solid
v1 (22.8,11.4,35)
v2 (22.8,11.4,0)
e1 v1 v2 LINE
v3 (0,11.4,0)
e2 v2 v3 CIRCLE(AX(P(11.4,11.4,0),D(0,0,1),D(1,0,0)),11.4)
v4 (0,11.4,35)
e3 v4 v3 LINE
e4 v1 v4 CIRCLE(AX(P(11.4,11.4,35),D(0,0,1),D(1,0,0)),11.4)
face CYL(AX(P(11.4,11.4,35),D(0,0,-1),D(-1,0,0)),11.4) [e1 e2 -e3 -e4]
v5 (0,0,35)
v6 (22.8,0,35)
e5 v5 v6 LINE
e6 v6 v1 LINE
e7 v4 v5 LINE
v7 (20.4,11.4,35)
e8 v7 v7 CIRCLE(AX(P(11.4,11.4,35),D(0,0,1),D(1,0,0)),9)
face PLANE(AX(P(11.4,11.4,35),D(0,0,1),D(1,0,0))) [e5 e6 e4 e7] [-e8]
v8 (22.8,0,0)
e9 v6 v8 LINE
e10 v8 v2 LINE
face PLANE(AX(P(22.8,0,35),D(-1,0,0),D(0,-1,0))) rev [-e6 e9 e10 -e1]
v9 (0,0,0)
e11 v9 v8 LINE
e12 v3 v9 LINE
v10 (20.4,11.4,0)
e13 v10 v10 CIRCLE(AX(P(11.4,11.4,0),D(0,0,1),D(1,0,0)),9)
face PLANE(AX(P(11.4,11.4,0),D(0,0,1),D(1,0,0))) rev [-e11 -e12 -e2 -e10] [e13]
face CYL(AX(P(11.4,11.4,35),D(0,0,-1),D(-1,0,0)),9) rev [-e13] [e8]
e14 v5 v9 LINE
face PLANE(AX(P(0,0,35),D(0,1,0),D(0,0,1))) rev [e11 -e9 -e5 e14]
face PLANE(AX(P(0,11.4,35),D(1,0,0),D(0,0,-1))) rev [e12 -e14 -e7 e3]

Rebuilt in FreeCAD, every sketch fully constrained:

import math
import FreeCAD as App
import Part
import Sketcher
Q = App.Units.Quantity

doc = App.newDocument("Part")
body = doc.addObject("PartDesign::Body", "Body")

# Sketch on XY plane
sketch1 = body.newObject("Sketcher::SketchObject", "Sketch")
sketch1.AttachmentSupport = (doc.getObject("XY_Plane"), [""])
sketch1.MapMode = "FlatFace"
sketch1.addGeometry([
    Part.LineSegment(App.Vector(0, 0, 0), App.Vector(23, 0, 0)),  # 0
    Part.LineSegment(App.Vector(23, 0, 0), App.Vector(23, 11, 0)),  # 1
    Part.ArcOfCircle(Part.Circle(App.Vector(11, 11, 0), App.Vector(0, 0, 1), 11), math.radians(0), math.radians(180)),  # 2
    Part.LineSegment(App.Vector(0, 11, 0), App.Vector(0, 0, 0)),  # 3
    Part.Circle(App.Vector(11, 11, 0), App.Vector(0, 0, 1), 9),  # 4
], False)
sketch1.addConstraint([
    Sketcher.Constraint("Coincident", 0, 2, 1, 1),
    Sketcher.Constraint("Tangent", 1, 2, 2, 1),
    Sketcher.Constraint("Tangent", 2, 2, 3, 1),
    Sketcher.Constraint("Coincident", 3, 2, 0, 1),
    Sketcher.Constraint("Horizontal", 0),
    Sketcher.Constraint("Vertical", 1),
    Sketcher.Constraint("Vertical", 3),
    Sketcher.Constraint("Coincident", 3, 2, -1, 1),
    Sketcher.Constraint("Coincident", 4, 3, 2, 3),
    Sketcher.Constraint("Diameter", 4, Q("18 mm")),
    Sketcher.Constraint("Radius", 2, Q("11.4 mm")),
    Sketcher.Constraint("DistanceY", 1, 1, 1, 2, Q("11.4 mm")),
])
pad1 = body.newObject("PartDesign::Pad", "Pad")
pad1.Profile = sketch1
pad1.Length = 35

doc.recompute()
